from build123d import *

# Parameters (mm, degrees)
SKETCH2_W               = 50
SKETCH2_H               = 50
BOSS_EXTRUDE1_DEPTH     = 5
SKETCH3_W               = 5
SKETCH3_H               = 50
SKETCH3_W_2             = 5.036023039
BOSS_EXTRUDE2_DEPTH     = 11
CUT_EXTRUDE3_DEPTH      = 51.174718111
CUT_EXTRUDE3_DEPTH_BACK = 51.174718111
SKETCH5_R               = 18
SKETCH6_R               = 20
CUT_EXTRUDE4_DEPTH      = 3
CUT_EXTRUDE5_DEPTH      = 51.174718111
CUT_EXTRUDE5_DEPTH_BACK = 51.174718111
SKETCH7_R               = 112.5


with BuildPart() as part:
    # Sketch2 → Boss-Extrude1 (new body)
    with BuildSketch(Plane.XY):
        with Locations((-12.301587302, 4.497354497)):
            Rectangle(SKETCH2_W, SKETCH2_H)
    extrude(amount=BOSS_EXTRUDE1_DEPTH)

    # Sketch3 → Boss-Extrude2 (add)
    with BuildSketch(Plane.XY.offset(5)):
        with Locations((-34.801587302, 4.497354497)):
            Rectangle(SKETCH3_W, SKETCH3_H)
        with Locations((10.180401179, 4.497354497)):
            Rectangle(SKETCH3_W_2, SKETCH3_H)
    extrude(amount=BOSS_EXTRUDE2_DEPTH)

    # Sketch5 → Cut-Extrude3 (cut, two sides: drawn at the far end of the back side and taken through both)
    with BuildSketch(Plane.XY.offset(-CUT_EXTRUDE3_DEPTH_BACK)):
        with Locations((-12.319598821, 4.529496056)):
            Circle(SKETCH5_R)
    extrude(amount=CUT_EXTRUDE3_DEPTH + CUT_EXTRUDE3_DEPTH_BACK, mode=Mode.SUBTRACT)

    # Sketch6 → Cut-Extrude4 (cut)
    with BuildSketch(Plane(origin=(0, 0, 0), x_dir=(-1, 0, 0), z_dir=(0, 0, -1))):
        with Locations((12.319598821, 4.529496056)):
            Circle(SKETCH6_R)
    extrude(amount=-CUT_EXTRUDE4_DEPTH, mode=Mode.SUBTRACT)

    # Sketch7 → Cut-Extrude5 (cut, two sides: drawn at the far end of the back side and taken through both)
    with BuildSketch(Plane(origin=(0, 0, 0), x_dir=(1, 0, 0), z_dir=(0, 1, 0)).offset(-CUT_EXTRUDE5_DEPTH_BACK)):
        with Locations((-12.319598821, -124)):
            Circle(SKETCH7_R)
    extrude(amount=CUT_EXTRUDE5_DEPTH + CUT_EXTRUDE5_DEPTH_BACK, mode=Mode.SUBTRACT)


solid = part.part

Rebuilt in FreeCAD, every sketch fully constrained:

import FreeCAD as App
import Part
import Sketcher

V = App.Vector

doc = App.newDocument("Part")
body = doc.addObject("PartDesign::Body", "Body")

# Sketch on XY plane
sketch1 = body.newObject("Sketcher::SketchObject", "Sketch")
sketch1.AttachmentSupport = (doc.getObject("XY_Plane"), [""])
sketch1.MapMode = "FlatFace"
sketch1.addGeometry([
    Part.LineSegment(V(-37, 29, 0), V(-37, -21, 0)),
    Part.LineSegment(V(-37, -21, 0), V(13, -21, 0)),
    Part.LineSegment(V(13, -21, 0), V(13, 29, 0)),
    Part.LineSegment(V(13, 29, 0), V(-37, 29, 0)),
], False)
sketch1.addConstraint([
    Sketcher.Constraint("Coincident", 0, 2, 1, 1),
    Sketcher.Constraint("Coincident", 1, 2, 2, 1),
    Sketcher.Constraint("Coincident", 2, 2, 3, 1),
    Sketcher.Constraint("Coincident", 3, 2, 0, 1),
    Sketcher.Constraint("Vertical", 0),
    Sketcher.Constraint("Horizontal", 1),
    Sketcher.Constraint("Vertical", 2),
    Sketcher.Constraint("Horizontal", 3),
    Sketcher.Constraint("Equal", 3, 0),
    Sketcher.Constraint("DistanceX", 1, 1, 1, 2, 50.0),
    Sketcher.Constraint("DistanceX", 0, 2, -1, 1, 37.301587),
    Sketcher.Constraint("DistanceY", 0, 2, -1, 1, 20.502646),
])
pad1 = body.newObject("PartDesign::Pad", "Pad")
pad1.Profile = sketch1
pad1.Length = 5

# Sketch on XY plane
sketch2 = body.newObject("Sketcher::SketchObject", "Sketch001")
sketch2.AttachmentSupport = (doc.getObject("XY_Plane"), [""])
sketch2.MapMode = "FlatFace"
sketch2.AttachmentOffset = App.Placement(V(0, 0, 5), App.Rotation())
sketch2.addGeometry([
    Part.LineSegment(V(-37, 29, 0), V(-37, -21, 0)),  # 0
    Part.LineSegment(V(-37, -21, 0), V(-32, -21, 0)),  # 1
    Part.LineSegment(V(-32, -21, 0), V(-32, 29, 0)),  # 2
    Part.LineSegment(V(-32, 29, 0), V(-37, 29, 0)),  # 3
    Part.LineSegment(V(8, 29, 0), V(8, -21, 0)),  # 4
    Part.LineSegment(V(8, -21, 0), V(13, -21, 0)),  # 5
    Part.LineSegment(V(13, -21, 0), V(13, 29, 0)),  # 6
    Part.LineSegment(V(13, 29, 0), V(8, 29, 0)),  # 7
], False)
sketch2.addConstraint([
    Sketcher.Constraint("Coincident", 0, 2, 1, 1),
    Sketcher.Constraint("Coincident", 1, 2, 2, 1),
    Sketcher.Constraint("Coincident", 2, 2, 3, 1),
    Sketcher.Constraint("Coincident", 3, 2, 0, 1),
    Sketcher.Constraint("Coincident", 4, 2, 5, 1),
    Sketcher.Constraint("Coincident", 5, 2, 6, 1),
    Sketcher.Constraint("Coincident", 6, 2, 7, 1),
    Sketcher.Constraint("Coincident", 7, 2, 4, 1),
    Sketcher.Constraint("Vertical", 0),
    Sketcher.Constraint("Horizontal", 1),
    Sketcher.Constraint("Vertical", 2),
    Sketcher.Constraint("Horizontal", 3),
    Sketcher.Constraint("Vertical", 4),
    Sketcher.Constraint("Horizontal", 5),
    Sketcher.Constraint("Vertical", 6),
    Sketcher.Constraint("Horizontal", 7),
    Sketcher.Constraint("Horizontal", 1, 2, 4, 2),
    Sketcher.Constraint("Horizontal", 3, 2, 6, 2),
    Sketcher.Constraint("DistanceX", 1, 1, 1, 2, 5.0),
    Sketcher.Constraint("DistanceY", 0, 2, 0, 1, 50.0),
    Sketcher.Constraint("DistanceX", 1, 2, 5, 2, 45.0),
    Sketcher.Constraint("DistanceX", 5, 1, 5, 2, 5.036023),
    Sketcher.Constraint("DistanceX", -1, 1, 4, 2, 7.66239),
    Sketcher.Constraint("DistanceY", 0, 2, -1, 1, 20.502646),
])
pad2 = body.newObject("PartDesign::Pad", "Pad001")
pad2.Profile = sketch2
pad2.Length = 11

# Sketch on XY plane
sketch3 = body.newObject("Sketcher::SketchObject", "Sketch002")
sketch3.AttachmentSupport = (doc.getObject("XY_Plane"), [""])
sketch3.MapMode = "FlatFace"
sketch3.addGeometry(Part.Circle(V(-12, 5, 0), V(0, 0, 1), 18), False)
sketch3.addConstraint([
    Sketcher.Constraint("Diameter", 0, 36.0),
    Sketcher.Constraint("DistanceX", 0, 3, -1, 1, 12.319599),
    Sketcher.Constraint("DistanceY", -1, 1, 0, 3, 4.529496),
])
pocket1 = body.newObject("PartDesign::Pocket", "Pocket")
pocket1.Profile = sketch3
pocket1.Type = "ThroughAll"
pocket1.Midplane = True

# Sketch on XY plane
sketch4 = body.newObject("Sketcher::SketchObject", "Sketch003")
sketch4.AttachmentSupport = (doc.getObject("XY_Plane"), [""])
sketch4.MapMode = "FlatFace"
sketch4.addGeometry(Part.Circle(V(-12, 5, 0), V(0, 0, 1), 20), False)
sketch4.addConstraint([
    Sketcher.Constraint("Diameter", 0, 40.0),
    Sketcher.Constraint("DistanceX", 0, 3, -1, 1, 12.319599),
    Sketcher.Constraint("DistanceY", -1, 1, 0, 3, 4.529496),
])
pocket2 = body.newObject("PartDesign::Pocket", "Pocket001")
pocket2.Profile = sketch4
pocket2.Length = 3
pocket2.Reversed = True

# Sketch on XZ plane
sketch5 = body.newObject("Sketcher::SketchObject", "Sketch004")
sketch5.AttachmentSupport = (doc.getObject("XZ_Plane"), [""])
sketch5.MapMode = "FlatFace"
sketch5.addGeometry(Part.Circle(V(-12, 124, 0), V(0, 0, 1), 112), False)
sketch5.addConstraint([
    Sketcher.Constraint("Diameter", 0, 225.0),
    Sketcher.Constraint("DistanceY", -1, 1, 0, 3, 124.0),
    Sketcher.Constraint("DistanceX", 0, 3, -1, 1, 12.319599),
])
pocket3 = body.newObject("PartDesign::Pocket", "Pocket002")
pocket3.Profile = sketch5
pocket3.Type = "ThroughAll"
pocket3.Midplane = True

doc.recompute()
